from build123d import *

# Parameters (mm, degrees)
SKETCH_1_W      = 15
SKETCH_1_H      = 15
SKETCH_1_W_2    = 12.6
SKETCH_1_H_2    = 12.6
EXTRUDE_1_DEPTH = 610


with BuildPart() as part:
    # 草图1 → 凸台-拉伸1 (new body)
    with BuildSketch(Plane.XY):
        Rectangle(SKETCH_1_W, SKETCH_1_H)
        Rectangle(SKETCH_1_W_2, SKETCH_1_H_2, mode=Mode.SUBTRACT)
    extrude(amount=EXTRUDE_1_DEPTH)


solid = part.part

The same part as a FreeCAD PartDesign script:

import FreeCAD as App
import Part
import Sketcher
from FreeCAD import Vector
Q = App.Units.Quantity


def add_polygon(sketch, points):
    """Adds a closed chain of lines whose ends are joined by coincident constraints."""
    first, n = sketch.GeometryCount, len(points)
    for a, b in zip(points, points[1:] + points[:1]):
        sketch.addGeometry(Part.LineSegment(App.Vector(*a, 0), App.Vector(*b, 0)), False)
    for i in range(n):
        sketch.addConstraint(Sketcher.Constraint("Coincident", first + i, 2, first + (i + 1) % n, 1))

doc = App.newDocument("Part")
body = doc.addObject("PartDesign::Body", "Body")

# Sketch on XY plane
sketch1 = body.newObject("Sketcher::SketchObject", "Sketch")
sketch1.AttachmentSupport = (doc.getObject("XY_Plane"), [""])
sketch1.MapMode = "FlatFace"
add_polygon(sketch1, [(-8, 8), (-8, -8), (8, -8), (8, 8)])  # lines 0-3
add_polygon(sketch1, [(6, -6), (-6, -6), (-6, 6), (6, 6)])  # lines 4-7
sketch1.addConstraint(Sketcher.Constraint("Vertical", 0))
sketch1.addConstraint(Sketcher.Constraint("Horizontal", 1))
sketch1.addConstraint(Sketcher.Constraint("Vertical", 2))
sketch1.addConstraint(Sketcher.Constraint("Horizontal", 3))
sketch1.addConstraint(Sketcher.Constraint("Horizontal", 4))
sketch1.addConstraint(Sketcher.Constraint("Vertical", 5))
sketch1.addConstraint(Sketcher.Constraint("Horizontal", 6))
sketch1.addConstraint(Sketcher.Constraint("Vertical", 7))
sketch1.addConstraint(Sketcher.Constraint("Symmetric", 0, 2, 2, 2, -1, 1))
sketch1.addConstraint(Sketcher.Constraint("Symmetric", 4, 2, 6, 2, -1, 1))
sketch1.addConstraint(Sketcher.Constraint("Equal", 3, 0))
sketch1.addConstraint(Sketcher.Constraint("Equal", 6, 5))
sketch1.addConstraint(Sketcher.Constraint("DistanceX", 1, 1, 1, 2, Q("15 mm")))
sketch1.addConstraint(Sketcher.Constraint("DistanceX", 4, 2, 4, 1, Q("12.6 mm")))
pad1 = body.newObject("PartDesign::Pad", "Pad")
pad1.Profile = sketch1
pad1.Length = 610

doc.recompute()
